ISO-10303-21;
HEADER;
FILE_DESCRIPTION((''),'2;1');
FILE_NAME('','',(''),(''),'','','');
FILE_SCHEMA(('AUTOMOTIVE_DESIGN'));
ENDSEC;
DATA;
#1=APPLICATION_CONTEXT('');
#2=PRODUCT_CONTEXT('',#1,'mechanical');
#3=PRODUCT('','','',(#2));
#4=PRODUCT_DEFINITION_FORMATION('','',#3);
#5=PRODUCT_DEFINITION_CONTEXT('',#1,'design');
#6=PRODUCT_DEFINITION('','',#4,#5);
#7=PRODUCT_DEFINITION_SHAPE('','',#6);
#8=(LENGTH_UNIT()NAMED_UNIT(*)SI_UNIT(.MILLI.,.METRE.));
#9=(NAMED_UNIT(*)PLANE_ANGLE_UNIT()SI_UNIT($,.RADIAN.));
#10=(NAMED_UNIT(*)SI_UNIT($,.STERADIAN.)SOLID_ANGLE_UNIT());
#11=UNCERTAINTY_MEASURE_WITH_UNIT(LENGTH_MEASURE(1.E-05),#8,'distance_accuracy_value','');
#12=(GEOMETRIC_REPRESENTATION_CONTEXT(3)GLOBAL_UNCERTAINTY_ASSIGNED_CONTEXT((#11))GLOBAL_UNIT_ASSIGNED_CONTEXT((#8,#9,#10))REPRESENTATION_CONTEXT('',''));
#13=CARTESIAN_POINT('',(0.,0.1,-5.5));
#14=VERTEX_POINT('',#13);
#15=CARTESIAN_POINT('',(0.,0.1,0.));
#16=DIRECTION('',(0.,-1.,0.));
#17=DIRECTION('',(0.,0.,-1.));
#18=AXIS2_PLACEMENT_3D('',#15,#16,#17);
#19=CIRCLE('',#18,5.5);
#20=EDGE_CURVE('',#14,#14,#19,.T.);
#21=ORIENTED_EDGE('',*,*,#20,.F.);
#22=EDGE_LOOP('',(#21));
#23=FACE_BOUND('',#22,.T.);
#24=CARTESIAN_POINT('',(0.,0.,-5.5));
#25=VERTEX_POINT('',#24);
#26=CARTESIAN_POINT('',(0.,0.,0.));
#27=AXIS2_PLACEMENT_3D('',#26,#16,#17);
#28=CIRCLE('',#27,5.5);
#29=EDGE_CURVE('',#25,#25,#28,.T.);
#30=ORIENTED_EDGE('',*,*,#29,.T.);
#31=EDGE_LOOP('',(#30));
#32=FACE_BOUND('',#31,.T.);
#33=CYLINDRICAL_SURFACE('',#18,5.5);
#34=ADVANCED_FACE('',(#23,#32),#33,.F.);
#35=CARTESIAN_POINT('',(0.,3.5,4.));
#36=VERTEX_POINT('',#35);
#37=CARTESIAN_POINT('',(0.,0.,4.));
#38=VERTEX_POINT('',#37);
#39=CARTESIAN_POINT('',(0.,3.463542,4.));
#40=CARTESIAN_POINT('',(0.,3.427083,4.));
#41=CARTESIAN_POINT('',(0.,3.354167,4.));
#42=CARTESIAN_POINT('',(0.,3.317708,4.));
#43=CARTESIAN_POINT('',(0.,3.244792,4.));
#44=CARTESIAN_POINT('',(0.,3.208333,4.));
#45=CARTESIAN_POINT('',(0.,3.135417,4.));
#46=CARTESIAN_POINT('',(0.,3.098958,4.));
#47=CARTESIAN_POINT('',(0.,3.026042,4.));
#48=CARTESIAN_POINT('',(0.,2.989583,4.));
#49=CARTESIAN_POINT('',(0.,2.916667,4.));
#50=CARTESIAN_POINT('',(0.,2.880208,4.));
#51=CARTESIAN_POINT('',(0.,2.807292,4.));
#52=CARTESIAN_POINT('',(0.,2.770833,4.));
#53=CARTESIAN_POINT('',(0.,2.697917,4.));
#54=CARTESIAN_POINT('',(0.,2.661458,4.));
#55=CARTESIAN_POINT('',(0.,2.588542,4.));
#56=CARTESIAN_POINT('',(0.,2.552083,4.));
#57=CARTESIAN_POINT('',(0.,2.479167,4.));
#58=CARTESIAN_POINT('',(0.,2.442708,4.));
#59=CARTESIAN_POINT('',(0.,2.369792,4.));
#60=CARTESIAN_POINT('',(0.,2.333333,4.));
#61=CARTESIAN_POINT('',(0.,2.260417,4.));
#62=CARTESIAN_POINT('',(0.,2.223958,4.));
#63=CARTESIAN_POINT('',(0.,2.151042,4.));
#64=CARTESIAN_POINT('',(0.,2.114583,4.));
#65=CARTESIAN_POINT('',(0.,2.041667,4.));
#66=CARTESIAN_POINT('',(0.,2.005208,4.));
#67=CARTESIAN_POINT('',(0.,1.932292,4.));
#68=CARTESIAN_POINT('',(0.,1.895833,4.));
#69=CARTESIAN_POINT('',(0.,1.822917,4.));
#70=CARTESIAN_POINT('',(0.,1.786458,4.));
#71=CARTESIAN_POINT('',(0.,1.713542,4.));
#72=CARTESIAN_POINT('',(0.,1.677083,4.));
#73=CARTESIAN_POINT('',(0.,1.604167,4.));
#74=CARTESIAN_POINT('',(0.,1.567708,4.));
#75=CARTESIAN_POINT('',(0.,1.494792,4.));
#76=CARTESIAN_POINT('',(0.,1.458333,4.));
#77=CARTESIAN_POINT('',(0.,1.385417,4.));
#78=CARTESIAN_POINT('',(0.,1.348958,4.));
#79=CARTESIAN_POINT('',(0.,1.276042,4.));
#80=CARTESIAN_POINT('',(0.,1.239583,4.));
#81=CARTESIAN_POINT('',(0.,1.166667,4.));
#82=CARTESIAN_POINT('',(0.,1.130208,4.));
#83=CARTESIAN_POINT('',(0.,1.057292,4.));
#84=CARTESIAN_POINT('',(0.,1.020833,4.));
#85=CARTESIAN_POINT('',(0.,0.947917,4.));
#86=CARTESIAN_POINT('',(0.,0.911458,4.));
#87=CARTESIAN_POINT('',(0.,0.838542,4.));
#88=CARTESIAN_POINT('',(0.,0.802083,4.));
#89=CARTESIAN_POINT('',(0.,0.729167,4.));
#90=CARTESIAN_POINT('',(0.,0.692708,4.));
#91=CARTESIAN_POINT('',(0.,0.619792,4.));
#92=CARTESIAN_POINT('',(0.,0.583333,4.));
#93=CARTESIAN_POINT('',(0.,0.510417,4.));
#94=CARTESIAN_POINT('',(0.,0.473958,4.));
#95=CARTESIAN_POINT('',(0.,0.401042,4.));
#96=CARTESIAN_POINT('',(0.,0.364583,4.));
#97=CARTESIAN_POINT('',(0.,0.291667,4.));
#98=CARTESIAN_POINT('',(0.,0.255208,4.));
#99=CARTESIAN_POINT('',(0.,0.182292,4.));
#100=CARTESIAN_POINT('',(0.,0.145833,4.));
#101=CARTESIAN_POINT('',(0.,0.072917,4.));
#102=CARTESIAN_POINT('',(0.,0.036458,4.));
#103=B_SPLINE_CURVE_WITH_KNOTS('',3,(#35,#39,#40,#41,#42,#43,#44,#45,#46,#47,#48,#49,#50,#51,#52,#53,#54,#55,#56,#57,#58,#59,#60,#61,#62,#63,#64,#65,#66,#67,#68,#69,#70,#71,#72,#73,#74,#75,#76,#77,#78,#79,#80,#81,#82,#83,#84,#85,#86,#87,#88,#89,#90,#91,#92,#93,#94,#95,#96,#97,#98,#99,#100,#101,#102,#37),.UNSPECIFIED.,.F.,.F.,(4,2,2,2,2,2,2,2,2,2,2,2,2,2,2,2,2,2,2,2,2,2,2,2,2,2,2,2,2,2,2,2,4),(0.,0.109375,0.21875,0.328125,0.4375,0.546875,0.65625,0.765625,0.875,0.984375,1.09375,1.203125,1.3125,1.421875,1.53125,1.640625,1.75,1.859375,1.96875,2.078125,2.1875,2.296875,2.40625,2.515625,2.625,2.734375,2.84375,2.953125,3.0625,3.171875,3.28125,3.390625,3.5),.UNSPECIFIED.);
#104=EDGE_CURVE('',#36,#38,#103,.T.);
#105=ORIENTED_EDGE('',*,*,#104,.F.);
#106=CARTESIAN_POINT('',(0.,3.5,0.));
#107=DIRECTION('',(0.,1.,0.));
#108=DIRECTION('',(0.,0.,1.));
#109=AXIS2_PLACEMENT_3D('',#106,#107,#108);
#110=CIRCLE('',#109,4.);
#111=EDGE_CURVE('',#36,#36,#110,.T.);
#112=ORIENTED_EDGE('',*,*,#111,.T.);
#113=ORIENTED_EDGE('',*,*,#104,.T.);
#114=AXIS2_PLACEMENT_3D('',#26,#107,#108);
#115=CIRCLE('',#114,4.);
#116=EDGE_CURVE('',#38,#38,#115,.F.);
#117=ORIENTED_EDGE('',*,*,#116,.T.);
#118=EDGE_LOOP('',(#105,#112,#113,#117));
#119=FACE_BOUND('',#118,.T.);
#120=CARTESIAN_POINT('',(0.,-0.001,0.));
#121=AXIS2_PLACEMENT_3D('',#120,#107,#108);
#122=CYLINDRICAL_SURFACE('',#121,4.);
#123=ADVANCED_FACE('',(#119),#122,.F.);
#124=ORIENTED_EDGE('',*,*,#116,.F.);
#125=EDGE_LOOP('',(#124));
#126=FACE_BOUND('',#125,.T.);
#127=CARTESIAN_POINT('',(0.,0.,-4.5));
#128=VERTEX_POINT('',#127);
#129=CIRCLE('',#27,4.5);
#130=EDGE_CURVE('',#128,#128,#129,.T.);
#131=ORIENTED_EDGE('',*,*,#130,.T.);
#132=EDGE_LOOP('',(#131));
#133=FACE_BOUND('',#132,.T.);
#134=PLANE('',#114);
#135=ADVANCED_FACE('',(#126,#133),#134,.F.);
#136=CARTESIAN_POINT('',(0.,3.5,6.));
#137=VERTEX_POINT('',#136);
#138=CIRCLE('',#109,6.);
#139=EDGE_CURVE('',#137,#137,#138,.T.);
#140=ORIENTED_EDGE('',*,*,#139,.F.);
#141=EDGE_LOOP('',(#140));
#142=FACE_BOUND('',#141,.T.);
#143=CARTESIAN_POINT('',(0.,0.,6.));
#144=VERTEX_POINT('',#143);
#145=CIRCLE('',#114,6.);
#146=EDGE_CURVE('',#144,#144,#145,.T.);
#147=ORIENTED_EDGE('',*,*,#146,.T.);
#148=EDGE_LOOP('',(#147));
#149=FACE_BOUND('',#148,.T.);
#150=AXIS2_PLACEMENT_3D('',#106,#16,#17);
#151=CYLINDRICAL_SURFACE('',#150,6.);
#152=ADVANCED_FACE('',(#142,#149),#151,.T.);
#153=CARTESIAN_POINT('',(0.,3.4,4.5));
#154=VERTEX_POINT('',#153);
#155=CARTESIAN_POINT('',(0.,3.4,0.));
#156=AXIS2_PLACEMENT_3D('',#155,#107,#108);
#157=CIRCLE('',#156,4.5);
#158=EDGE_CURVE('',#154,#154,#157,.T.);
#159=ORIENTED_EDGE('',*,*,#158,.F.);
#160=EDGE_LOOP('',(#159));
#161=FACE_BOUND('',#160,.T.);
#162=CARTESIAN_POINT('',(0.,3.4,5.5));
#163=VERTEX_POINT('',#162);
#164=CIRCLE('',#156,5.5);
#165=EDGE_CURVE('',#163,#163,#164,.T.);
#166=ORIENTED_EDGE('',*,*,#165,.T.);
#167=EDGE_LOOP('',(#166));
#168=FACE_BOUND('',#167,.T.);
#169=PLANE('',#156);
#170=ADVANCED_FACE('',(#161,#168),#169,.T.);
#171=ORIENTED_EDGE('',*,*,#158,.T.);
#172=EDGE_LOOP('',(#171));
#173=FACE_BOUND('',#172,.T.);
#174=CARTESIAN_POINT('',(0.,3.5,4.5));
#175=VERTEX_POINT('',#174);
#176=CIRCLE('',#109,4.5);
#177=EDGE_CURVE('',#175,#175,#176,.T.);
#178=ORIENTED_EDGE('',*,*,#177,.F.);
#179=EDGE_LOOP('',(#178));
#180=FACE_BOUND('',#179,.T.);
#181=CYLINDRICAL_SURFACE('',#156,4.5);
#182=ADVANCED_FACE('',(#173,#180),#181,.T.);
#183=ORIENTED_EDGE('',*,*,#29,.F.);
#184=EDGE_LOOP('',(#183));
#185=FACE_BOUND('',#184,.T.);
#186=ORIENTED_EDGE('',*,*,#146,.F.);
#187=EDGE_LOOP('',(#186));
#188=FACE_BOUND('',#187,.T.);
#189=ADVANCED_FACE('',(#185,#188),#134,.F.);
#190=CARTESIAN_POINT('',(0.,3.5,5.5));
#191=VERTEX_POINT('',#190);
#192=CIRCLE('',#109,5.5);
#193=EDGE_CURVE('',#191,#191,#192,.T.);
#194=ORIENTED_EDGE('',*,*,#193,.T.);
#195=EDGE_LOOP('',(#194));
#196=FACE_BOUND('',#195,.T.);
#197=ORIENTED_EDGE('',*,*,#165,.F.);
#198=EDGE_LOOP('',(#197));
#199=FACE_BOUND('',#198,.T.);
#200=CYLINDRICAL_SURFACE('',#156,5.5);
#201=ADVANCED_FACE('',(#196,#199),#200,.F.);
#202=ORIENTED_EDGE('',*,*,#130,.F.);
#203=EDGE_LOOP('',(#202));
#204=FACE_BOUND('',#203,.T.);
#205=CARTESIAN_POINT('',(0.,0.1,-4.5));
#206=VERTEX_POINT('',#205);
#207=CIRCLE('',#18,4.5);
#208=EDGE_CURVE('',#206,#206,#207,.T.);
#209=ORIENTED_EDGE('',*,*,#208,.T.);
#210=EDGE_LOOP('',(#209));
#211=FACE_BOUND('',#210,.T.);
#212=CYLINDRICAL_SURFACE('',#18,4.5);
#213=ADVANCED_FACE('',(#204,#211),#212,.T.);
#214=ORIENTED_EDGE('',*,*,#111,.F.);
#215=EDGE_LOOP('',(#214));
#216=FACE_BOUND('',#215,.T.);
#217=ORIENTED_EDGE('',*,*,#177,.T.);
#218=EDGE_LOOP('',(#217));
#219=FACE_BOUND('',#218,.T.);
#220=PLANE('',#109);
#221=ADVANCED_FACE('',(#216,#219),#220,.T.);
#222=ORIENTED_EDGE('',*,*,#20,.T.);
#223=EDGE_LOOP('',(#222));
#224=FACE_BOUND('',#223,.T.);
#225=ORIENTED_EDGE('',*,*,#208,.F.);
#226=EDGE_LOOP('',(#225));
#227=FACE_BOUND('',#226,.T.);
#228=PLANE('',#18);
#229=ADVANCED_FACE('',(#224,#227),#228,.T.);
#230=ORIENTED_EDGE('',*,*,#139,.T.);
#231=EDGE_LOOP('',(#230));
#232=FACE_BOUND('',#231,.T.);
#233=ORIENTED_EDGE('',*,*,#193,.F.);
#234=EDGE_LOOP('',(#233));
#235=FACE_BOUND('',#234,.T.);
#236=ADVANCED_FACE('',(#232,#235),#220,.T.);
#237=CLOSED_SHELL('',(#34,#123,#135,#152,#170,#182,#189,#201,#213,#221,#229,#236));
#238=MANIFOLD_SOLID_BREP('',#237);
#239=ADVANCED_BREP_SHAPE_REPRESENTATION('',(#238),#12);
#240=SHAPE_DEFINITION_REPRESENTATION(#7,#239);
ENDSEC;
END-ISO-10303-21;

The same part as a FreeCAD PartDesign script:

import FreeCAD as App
import Part
import Sketcher
from FreeCAD import Vector
Q = App.Units.Quantity

doc = App.newDocument("Part")
body = doc.addObject("PartDesign::Body", "Body")

# Sketch on XZ plane
sketch1 = body.newObject("Sketcher::SketchObject", "Sketch")
sketch1.AttachmentSupport = (doc.getObject("XZ_Plane"), [""])
sketch1.MapMode = "FlatFace"
sketch1.addGeometry(Part.Circle(Vector(0, 0, 0), Vector(0, 0, 1), 6), False)
sketch1.addConstraint([
    Sketcher.Constraint("Coincident", 0, 3, -1, 1),
    Sketcher.Constraint("Diameter", 0, Q("12 mm")),
])
pad1 = body.newObject("PartDesign::Pad", "Pad")
pad1.Profile = sketch1
pad1.Length = 3.5
pad1.Reversed = True

# Sketch on XZ plane
sketch2 = body.newObject("Sketcher::SketchObject", "Sketch001")
sketch2.AttachmentSupport = (doc.getObject("XZ_Plane"), [""])
sketch2.MapMode = "FlatFace"
sketch2.AttachmentOffset = App.Placement(Vector(0, 0, -3.5), App.Rotation())
sketch2.addGeometry(Part.Circle(Vector(0, 0, 0), Vector(0, 0, 1), 4), False)
sketch2.addConstraint([
    Sketcher.Constraint("Coincident", 0, 3, -1, 1),
    Sketcher.Constraint("Diameter", 0, Q("8 mm")),
])
pocket1 = body.newObject("PartDesign::Pocket", "Pocket")
pocket1.Profile = sketch2
pocket1.Type = "UpToFirst"
pocket1.Reversed = True

# Sketch on XZ plane
sketch3 = body.newObject("Sketcher::SketchObject", "Sketch002")
sketch3.AttachmentSupport = (doc.getObject("XZ_Plane"), [""])
sketch3.MapMode = "FlatFace"
sketch3.AttachmentOffset = App.Placement(Vector(0, 0, -3.5), App.Rotation())
sketch3.addGeometry([
    Part.Circle(Vector(0, 0, 0), Vector(0, 0, 1), 5.5),
    Part.Circle(Vector(0, 0, 0), Vector(0, 0, 1), 4.5),
], False)
sketch3.addConstraint([
    Sketcher.Constraint("Coincident", 0, 3, -1, 1),
    Sketcher.Constraint("Coincident", 1, 3, -1, 1),
    Sketcher.Constraint("Diameter", 0, Q("11 mm")),
    Sketcher.Constraint("Diameter", 1, Q("9 mm")),
])
pocket2 = body.newObject("PartDesign::Pocket", "Pocket001")
pocket2.Profile = sketch3
pocket2.Length = 0.1
pocket2.Reversed = True

# Sketch on XZ plane
sketch4 = body.newObject("Sketcher::SketchObject", "Sketch003")
sketch4.AttachmentSupport = (doc.getObject("XZ_Plane"), [""])
sketch4.MapMode = "FlatFace"
sketch4.AttachmentOffset = App.Placement(Vector(0, 0, -0.1), App.Rotation())
sketch4.addGeometry([
    Part.Circle(Vector(0, 0, 0), Vector(0, 0, 1), 5.5),
    Part.Circle(Vector(0, 0, 0), Vector(0, 0, 1), 4.5),
], False)
sketch4.addConstraint([
    Sketcher.Constraint("Coincident", 0, 3, -1, 1),
    Sketcher.Constraint("Coincident", 1, 3, -1, 1),
    Sketcher.Constraint("Diameter", 0, Q("11 mm")),
    Sketcher.Constraint("Diameter", 1, Q("9 mm")),
])
pocket3 = body.newObject("PartDesign::Pocket", "Pocket002")
pocket3.Profile = sketch4
pocket3.Length = 0.1
pocket3.Reversed = True

doc.recompute()
